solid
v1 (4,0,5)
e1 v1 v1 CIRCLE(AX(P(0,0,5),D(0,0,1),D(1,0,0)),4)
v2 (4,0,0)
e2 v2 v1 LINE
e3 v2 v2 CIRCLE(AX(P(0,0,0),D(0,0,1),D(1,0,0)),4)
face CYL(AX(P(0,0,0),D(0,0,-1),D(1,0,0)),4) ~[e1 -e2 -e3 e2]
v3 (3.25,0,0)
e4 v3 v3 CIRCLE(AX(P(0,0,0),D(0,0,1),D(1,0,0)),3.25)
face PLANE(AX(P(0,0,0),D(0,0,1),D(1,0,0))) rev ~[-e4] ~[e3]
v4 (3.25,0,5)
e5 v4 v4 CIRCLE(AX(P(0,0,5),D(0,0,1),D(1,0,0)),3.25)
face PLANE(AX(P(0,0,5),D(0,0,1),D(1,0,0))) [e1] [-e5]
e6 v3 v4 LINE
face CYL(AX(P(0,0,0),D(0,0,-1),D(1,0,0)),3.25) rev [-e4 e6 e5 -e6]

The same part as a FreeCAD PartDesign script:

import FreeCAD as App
import Part
import Sketcher
from FreeCAD import Vector
Q = App.Units.Quantity

doc = App.newDocument("Part")
body = doc.addObject("PartDesign::Body", "Body")

# Sketch on XY plane
sketch1 = doc.addObject("Sketcher::SketchObject", "Sketch")
body.addObject(sketch1)
sketch1.AttachmentSupport = (doc.XY_Plane, [""])
sketch1.MapMode = "FlatFace"
sketch1.addGeometry([
    Part.Circle(Vector(0, 0, 0), Vector(0, 0, 1), 4),
    Part.Circle(Vector(0, 0, 0), Vector(0, 0, 1), 3.25),
], False)
sketch1.addConstraint([
    Sketcher.Constraint("Coincident", 0, 3, -1, 1),
    Sketcher.Constraint("Coincident", 1, 3, -1, 1),
    Sketcher.Constraint("Diameter", 0, Q("8 mm")),
    Sketcher.Constraint("Diameter", 1, Q("6.5 mm")),
])
pad1 = doc.addObject("PartDesign::Pad", "Pad")
body.addObject(pad1)
pad1.Profile = sketch1
pad1.Length = 5

doc.recompute()
